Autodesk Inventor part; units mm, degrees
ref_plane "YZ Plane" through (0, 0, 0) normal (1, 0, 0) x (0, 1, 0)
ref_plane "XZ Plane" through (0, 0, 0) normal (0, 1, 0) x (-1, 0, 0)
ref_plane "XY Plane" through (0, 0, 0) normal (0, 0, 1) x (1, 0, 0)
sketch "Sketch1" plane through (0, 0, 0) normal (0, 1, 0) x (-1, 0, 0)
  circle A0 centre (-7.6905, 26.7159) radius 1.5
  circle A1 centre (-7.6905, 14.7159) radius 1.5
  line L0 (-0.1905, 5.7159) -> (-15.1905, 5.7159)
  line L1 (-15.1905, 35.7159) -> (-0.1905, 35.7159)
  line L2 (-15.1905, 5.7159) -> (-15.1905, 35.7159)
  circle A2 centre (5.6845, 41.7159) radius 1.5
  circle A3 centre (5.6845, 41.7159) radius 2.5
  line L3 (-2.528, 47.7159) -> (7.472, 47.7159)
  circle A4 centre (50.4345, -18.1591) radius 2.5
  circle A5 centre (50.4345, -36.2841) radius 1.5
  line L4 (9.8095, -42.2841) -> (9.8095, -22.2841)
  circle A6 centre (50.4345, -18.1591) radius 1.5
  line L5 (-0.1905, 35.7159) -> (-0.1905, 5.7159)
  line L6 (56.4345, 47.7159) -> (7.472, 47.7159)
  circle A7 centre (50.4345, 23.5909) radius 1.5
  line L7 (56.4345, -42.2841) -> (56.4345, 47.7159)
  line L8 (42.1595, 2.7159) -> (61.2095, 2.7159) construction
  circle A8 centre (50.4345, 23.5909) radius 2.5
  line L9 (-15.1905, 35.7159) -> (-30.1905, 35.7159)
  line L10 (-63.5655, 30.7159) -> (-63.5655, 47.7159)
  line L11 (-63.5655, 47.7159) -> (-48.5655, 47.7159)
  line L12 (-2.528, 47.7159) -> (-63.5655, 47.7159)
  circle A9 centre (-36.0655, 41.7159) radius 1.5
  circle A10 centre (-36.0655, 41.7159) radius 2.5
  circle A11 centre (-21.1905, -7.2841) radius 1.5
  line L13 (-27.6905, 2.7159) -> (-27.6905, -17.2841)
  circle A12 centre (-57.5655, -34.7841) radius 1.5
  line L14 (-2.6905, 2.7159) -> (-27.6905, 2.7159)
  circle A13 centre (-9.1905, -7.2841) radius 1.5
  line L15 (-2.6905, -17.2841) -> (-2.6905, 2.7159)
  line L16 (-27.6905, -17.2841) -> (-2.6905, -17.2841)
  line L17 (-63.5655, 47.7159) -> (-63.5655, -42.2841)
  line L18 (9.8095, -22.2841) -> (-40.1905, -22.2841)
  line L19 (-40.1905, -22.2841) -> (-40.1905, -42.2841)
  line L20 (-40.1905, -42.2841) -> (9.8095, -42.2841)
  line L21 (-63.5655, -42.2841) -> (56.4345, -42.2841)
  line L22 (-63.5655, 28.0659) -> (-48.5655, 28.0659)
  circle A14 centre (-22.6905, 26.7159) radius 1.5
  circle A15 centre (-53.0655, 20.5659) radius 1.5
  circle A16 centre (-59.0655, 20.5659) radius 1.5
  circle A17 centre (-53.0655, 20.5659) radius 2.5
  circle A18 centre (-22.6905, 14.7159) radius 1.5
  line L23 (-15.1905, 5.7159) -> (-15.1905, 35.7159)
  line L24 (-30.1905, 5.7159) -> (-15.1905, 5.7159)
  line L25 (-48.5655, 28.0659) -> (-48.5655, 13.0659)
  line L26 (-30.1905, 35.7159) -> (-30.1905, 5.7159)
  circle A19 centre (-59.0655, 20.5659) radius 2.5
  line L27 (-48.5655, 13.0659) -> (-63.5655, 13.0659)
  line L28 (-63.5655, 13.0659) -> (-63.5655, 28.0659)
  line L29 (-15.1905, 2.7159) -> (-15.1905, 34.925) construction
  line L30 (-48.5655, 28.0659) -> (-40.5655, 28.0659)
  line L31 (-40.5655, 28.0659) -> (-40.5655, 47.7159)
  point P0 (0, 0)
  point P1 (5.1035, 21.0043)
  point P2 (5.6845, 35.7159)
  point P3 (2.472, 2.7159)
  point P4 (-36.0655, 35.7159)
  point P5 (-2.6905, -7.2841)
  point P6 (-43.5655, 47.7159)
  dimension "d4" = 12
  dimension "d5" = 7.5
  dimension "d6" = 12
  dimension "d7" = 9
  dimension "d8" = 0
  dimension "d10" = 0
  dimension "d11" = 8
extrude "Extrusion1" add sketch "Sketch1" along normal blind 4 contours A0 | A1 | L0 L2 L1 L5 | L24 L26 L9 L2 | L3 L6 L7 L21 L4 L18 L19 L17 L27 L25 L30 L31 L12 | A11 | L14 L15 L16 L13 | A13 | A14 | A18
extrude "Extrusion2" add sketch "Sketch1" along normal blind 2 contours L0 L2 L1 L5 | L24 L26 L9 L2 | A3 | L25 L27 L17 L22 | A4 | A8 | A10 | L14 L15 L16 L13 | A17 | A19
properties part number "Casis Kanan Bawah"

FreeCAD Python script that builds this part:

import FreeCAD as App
import Part
import Sketcher


def add_polygon(sketch, points):
    """Adds a closed chain of lines whose ends are joined by coincident constraints."""
    first, n = sketch.GeometryCount, len(points)
    for a, b in zip(points, points[1:] + points[:1]):
        sketch.addGeometry(Part.LineSegment(App.Vector(*a, 0), App.Vector(*b, 0)), False)
    for i in range(n):
        sketch.addConstraint(Sketcher.Constraint("Coincident", first + i, 2, first + (i + 1) % n, 1))

doc = App.newDocument("Part")
body = doc.addObject("PartDesign::Body", "Body")

# Sketch on XZ plane
sketch1 = body.newObject("Sketcher::SketchObject", "Sketch")
sketch1.AttachmentSupport = (doc.getObject("XZ_Plane"), [""])
sketch1.MapMode = "FlatFace"
add_polygon(sketch1, [(40.6, 47.7), (40.6, 28.1), (48.6, 28.1), (48.6, 13.1), (63.6, 13.1), (63.6, -42.3), (40.2, -42.3), (40.2, -22.3), (-9.8, -22.3), (-9.8, -42.3), (-56.4, -42.3), (-56.4, 47.7)])  # lines 0-11
sketch1.addGeometry(Part.Circle(App.Vector(57.6, -34.8, 0), App.Vector(0, 0, 1), 1.5), False)  # 12
sketch1.addGeometry(Part.Circle(App.Vector(-50.4, -36.3, 0), App.Vector(0, 0, 1), 1.5), False)  # 13
sketch1.addGeometry(Part.Circle(App.Vector(-50.4, -18.2, 0), App.Vector(0, 0, 1), 2.5), False)  # 14
sketch1.addGeometry(Part.Circle(App.Vector(36.1, 41.7, 0), App.Vector(0, 0, 1), 2.5), False)  # 15
sketch1.addGeometry(Part.Circle(App.Vector(-50.4, 23.6, 0), App.Vector(0, 0, 1), 2.5), False)  # 16
sketch1.addGeometry(Part.Circle(App.Vector(-5.7, 41.7, 0), App.Vector(0, 0, 1), 2.5), False)  # 17
sketch1.addConstraint([
    Sketcher.Constraint("Vertical", 0),
    Sketcher.Constraint("Horizontal", 1),
    Sketcher.Constraint("Vertical", 2),
    Sketcher.Constraint("Horizontal", 3),
    Sketcher.Constraint("Vertical", 4),
    Sketcher.Constraint("Horizontal", 5),
    Sketcher.Constraint("Vertical", 6),
    Sketcher.Constraint("Horizontal", 7),
    Sketcher.Constraint("Vertical", 8),
    Sketcher.Constraint("Horizontal", 9),
    Sketcher.Constraint("Vertical", 10),
    Sketcher.Constraint("Horizontal", 11),
    Sketcher.Constraint("Equal", 12, 13),
    Sketcher.Constraint("Equal", 14, 15),
    Sketcher.Constraint("Equal", 15, 16),
    Sketcher.Constraint("Equal", 16, 17),
    Sketcher.Constraint("Horizontal", 15, 3, 17, 3),
    Sketcher.Constraint("Horizontal", 5, 2, 8, 2),
    Sketcher.Constraint("Vertical", 13, 3, 14, 3),
    Sketcher.Constraint("Vertical", 14, 3, 16, 3),
    Sketcher.Constraint("Equal", 3, 2),
    Sketcher.Constraint("DistanceX", 1, 1, 1, 2, 8.0),
    Sketcher.Constraint("Diameter", 12, 3.0),
    Sketcher.Constraint("Diameter", 14, 5.0),
    Sketcher.Constraint("DistanceX", 1, 2, 12, 3, 9.0),
    Sketcher.Constraint("DistanceY", 4, 2, 12, 3, 7.5),
    Sketcher.Constraint("DistanceX", 3, 1, 3, 2, 15.0),
    Sketcher.Constraint("DistanceX", 7, 2, 7, 1, 50.0),
    Sketcher.Constraint("DistanceX", 11, 1, 11, 2, 97.0),
    Sketcher.Constraint("DistanceY", 6, 1, 6, 2, 20.0),
    Sketcher.Constraint("DistanceY", 10, 1, 10, 2, 90.0),
    Sketcher.Constraint("DistanceX", 13, 3, 12, 3, 108.0),
    Sketcher.Constraint("DistanceY", 13, 3, 15, 3, 78.0),
    Sketcher.Constraint("DistanceY", 13, 3, 7, 2, 14.0),
    Sketcher.Constraint("DistanceY", 0, 2, 0, 1, 19.65),
    Sketcher.Constraint("DistanceX", 15, 3, 12, 3, 21.5),
    Sketcher.Constraint("DistanceX", 5, 2, 5, 1, 23.375),
    Sketcher.Constraint("DistanceY", 14, 3, 16, 3, 41.75),
    Sketcher.Constraint("DistanceX", 17, 3, 15, 3, 41.75),
    Sketcher.Constraint("DistanceY", 12, 3, -1, 1, 34.784),
    Sketcher.Constraint("DistanceY", 14, 3, -1, 1, 18.159),
    Sketcher.Constraint("DistanceX", -1, 1, 12, 3, 57.5655),
])
pad1 = body.newObject("PartDesign::Pad", "Pad")
pad1.Profile = sketch1
pad1.Length = 4
pad1.Reversed = True

# Sketch on XZ plane
sketch2 = body.newObject("Sketcher::SketchObject", "Sketch001")
sketch2.AttachmentSupport = (doc.getObject("XZ_Plane"), [""])
sketch2.MapMode = "FlatFace"
add_polygon(sketch2, [(0.2, 5.7), (0.2, 35.7), (30.2, 35.7), (30.2, 5.7)])  # lines 0-3
sketch2.addGeometry(Part.Circle(App.Vector(7.7, 14.7, 0), App.Vector(0, 0, 1), 1.5), False)  # 4
sketch2.addGeometry(Part.Circle(App.Vector(7.7, 26.7, 0), App.Vector(0, 0, 1), 1.5), False)  # 5
sketch2.addGeometry(Part.Circle(App.Vector(22.7, 26.7, 0), App.Vector(0, 0, 1), 1.5), False)  # 6
sketch2.addGeometry(Part.Circle(App.Vector(22.7, 14.7, 0), App.Vector(0, 0, 1), 1.5), False)  # 7
sketch2.addGeometry(Part.Circle(App.Vector(-5.7, 41.7, 0), App.Vector(0, 0, 1), 2.5), False)  # 8
sketch2.addGeometry(Part.Circle(App.Vector(-5.7, 41.7, 0), App.Vector(0, 0, 1), 1.5), False)  # 9
add_polygon(sketch2, [(48.6, 13.1), (48.6, 28.1), (63.6, 28.1), (63.6, 13.1)])  # lines 10-13
sketch2.addGeometry(Part.Circle(App.Vector(59.1, 20.6, 0), App.Vector(0, 0, 1), 1.5), False)  # 14
sketch2.addGeometry(Part.Circle(App.Vector(53.1, 20.6, 0), App.Vector(0, 0, 1), 1.5), False)  # 15
sketch2.addGeometry(Part.Circle(App.Vector(-50.4, -18.2, 0), App.Vector(0, 0, 1), 2.5), False)  # 16
sketch2.addGeometry(Part.Circle(App.Vector(-50.4, -18.2, 0), App.Vector(0, 0, 1), 1.5), False)  # 17
sketch2.addGeometry(Part.Circle(App.Vector(-50.4, 23.6, 0), App.Vector(0, 0, 1), 2.5), False)  # 18
sketch2.addGeometry(Part.Circle(App.Vector(-50.4, 23.6, 0), App.Vector(0, 0, 1), 1.5), False)  # 19
sketch2.addGeometry(Part.Circle(App.Vector(36.1, 41.7, 0), App.Vector(0, 0, 1), 2.5), False)  # 20
sketch2.addGeometry(Part.Circle(App.Vector(36.1, 41.7, 0), App.Vector(0, 0, 1), 1.5), False)  # 21
add_polygon(sketch2, [(2.7, 2.7), (27.7, 2.7), (27.7, -17.3), (2.7, -17.3)])  # lines 22-25
sketch2.addGeometry(Part.Circle(App.Vector(21.2, -7.3, 0), App.Vector(0, 0, 1), 1.5), False)  # 26
sketch2.addGeometry(Part.Circle(App.Vector(9.2, -7.3, 0), App.Vector(0, 0, 1), 1.5), False)  # 27
sketch2.addConstraint([
    Sketcher.Constraint("Vertical", 0),
    Sketcher.Constraint("Horizontal", 1),
    Sketcher.Constraint("Vertical", 2),
    Sketcher.Constraint("Horizontal", 3),
    Sketcher.Constraint("Vertical", 10),
    Sketcher.Constraint("Horizontal", 11),
    Sketcher.Constraint("Vertical", 12),
    Sketcher.Constraint("Horizontal", 13),
    Sketcher.Constraint("Horizontal", 22),
    Sketcher.Constraint("Vertical", 23),
    Sketcher.Constraint("Horizontal", 24),
    Sketcher.Constraint("Vertical", 25),
    Sketcher.Constraint("Coincident", 9, 3, 8, 3),
    Sketcher.Constraint("Coincident", 17, 3, 16, 3),
    Sketcher.Constraint("Coincident", 19, 3, 18, 3),
    Sketcher.Constraint("Coincident", 21, 3, 20, 3),
    Sketcher.Constraint("Equal", 4, 5),
    Sketcher.Constraint("Equal", 5, 6),
    Sketcher.Constraint("Equal", 6, 7),
    Sketcher.Constraint("Equal", 7, 9),
    Sketcher.Constraint("Equal", 9, 14),
    Sketcher.Constraint("Equal", 14, 15),
    Sketcher.Constraint("Equal", 8, 16),
    Sketcher.Constraint("Equal", 15, 17),
    Sketcher.Constraint("Equal", 16, 18),
    Sketcher.Constraint("Equal", 17, 19),
    Sketcher.Constraint("Equal", 18, 20),
    Sketcher.Constraint("Equal", 19, 21),
    Sketcher.Constraint("Equal", 21, 26),
    Sketcher.Constraint("Equal", 26, 27),
    Sketcher.Constraint("Horizontal", 5, 3, 6, 3),
    Sketcher.Constraint("Horizontal", 4, 3, 7, 3),
    Sketcher.Constraint("Horizontal", 14, 3, 15, 3),
    Sketcher.Constraint("Horizontal", 9, 3, 20, 3),
    Sketcher.Constraint("Horizontal", 26, 3, 27, 3),
    Sketcher.Constraint("Vertical", 4, 3, 5, 3),
    Sketcher.Constraint("Vertical", 6, 3, 7, 3),
    Sketcher.Constraint("Vertical", 17, 3, 18, 3),
    Sketcher.Constraint("Equal", 3, 0),
    Sketcher.Constraint("Equal", 13, 10),
    Sketcher.Constraint("Diameter", 4, 3.0),
    Sketcher.Constraint("Diameter", 8, 5.0),
    Sketcher.Constraint("DistanceY", 4, 3, 5, 3, 12.0),
    Sketcher.Constraint("DistanceX", 27, 3, 26, 3, 12.0),
    Sketcher.Constraint("DistanceY", 5, 3, 0, 2, 9.0),
    Sketcher.Constraint("DistanceY", 2, 2, 7, 3, 9.0),
    Sketcher.Constraint("DistanceX", 26, 3, 2, 2, 9.0),
    Sketcher.Constraint("DistanceY", 22, 2, 7, 3, 12.0),
    Sketcher.Constraint("DistanceX", 0, 2, 5, 3, 7.5),
    Sketcher.Constraint("DistanceX", 6, 3, 1, 2, 7.5),
    Sketcher.Constraint("DistanceY", 15, 3, 10, 2, 7.5),
    Sketcher.Constraint("DistanceY", 12, 2, 14, 3, 7.5),
    Sketcher.Constraint("DistanceX", 22, 1, 22, 2, 25.0),
    Sketcher.Constraint("DistanceY", 23, 2, 23, 1, 20.0),
    Sketcher.Constraint("DistanceY", 5, 3, 8, 3, 15.0),
    Sketcher.Constraint("DistanceX", 15, 3, 14, 3, 6.0),
    Sketcher.Constraint("DistanceX", 20, 3, 15, 3, 17.0),
    Sketcher.Constraint("DistanceY", 26, 3, 7, 3, 22.0),
    Sketcher.Constraint("DistanceX", 7, 3, 22, 2, 5.0),
    Sketcher.Constraint("DistanceX", 10, 2, 15, 3, 4.5),
    Sketcher.Constraint("DistanceY", 7, 3, 14, 3, 5.85),
    Sketcher.Constraint("DistanceX", 8, 3, 14, 3, 64.75),
    Sketcher.Constraint("DistanceX", 16, 3, 8, 3, 44.75),
    Sketcher.Constraint("DistanceY", 16, 3, 18, 3, 41.75),
    Sketcher.Constraint("DistanceY", -1, 1, 4, 3, 14.716),
    Sketcher.Constraint("DistanceY", 16, 3, -1, 1, 18.159),
    Sketcher.Constraint("DistanceX", 8, 3, 5, 3, 13.375),
    Sketcher.Constraint("DistanceX", -1, 1, 4, 3, 7.6905),
])
pad2 = body.newObject("PartDesign::Pad", "Pad001")
pad2.Profile = sketch2
pad2.Length = 2
pad2.Reversed = True

doc.recompute()
